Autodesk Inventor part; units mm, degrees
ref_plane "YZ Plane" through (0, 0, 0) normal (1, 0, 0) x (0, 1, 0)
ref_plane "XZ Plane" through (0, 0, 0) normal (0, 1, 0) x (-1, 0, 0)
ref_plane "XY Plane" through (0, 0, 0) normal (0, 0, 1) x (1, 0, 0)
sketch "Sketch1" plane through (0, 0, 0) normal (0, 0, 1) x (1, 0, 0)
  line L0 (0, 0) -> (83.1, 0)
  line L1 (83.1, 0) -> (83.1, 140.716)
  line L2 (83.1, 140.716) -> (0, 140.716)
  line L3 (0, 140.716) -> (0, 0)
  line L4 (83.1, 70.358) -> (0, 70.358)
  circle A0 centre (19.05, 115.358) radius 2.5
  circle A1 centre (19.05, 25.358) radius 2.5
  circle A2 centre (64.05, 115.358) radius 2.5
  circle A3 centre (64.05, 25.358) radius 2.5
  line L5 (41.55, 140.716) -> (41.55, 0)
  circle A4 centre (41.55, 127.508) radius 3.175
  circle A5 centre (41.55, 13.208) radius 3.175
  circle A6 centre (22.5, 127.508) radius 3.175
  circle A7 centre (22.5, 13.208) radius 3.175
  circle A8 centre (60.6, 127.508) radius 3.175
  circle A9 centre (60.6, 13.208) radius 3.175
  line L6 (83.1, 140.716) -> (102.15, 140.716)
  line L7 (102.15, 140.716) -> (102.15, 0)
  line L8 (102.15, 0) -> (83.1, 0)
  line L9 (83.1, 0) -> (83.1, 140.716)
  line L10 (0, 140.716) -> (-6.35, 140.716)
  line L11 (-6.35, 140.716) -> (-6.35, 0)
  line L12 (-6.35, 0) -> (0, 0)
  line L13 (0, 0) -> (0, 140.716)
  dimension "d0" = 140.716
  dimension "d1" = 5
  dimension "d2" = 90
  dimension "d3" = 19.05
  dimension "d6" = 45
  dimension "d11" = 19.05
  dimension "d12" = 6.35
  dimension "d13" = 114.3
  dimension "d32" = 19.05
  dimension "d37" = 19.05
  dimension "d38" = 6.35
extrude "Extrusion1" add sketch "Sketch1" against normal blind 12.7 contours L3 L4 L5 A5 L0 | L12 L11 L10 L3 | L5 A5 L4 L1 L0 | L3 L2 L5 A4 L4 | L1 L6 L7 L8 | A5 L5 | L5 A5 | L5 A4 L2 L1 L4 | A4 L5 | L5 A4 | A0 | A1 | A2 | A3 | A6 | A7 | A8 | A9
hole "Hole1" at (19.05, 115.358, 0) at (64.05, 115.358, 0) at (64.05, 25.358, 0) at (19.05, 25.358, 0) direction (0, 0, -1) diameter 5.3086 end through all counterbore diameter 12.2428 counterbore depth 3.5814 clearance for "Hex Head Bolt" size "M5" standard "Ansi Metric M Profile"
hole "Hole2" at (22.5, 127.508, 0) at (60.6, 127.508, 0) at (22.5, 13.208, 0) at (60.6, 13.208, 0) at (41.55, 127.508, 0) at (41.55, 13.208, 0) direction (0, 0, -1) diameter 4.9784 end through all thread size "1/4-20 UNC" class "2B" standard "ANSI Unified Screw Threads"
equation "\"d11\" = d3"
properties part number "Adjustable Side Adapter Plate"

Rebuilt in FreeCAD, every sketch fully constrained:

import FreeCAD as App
import Part
import Sketcher

V = App.Vector
Q = App.Units.Quantity

doc = App.newDocument("Part")
body = doc.addObject("PartDesign::Body", "Body")

# Sketch on XY plane
sketch1 = body.newObject("Sketcher::SketchObject", "Sketch")
sketch1.AttachmentSupport = (doc.getObject("XY_Plane"), [""])
sketch1.MapMode = "FlatFace"
sketch1.addGeometry([
    Part.LineSegment(V(102, 0, 0), V(102, 141, 0)),
    Part.LineSegment(V(102, 141, 0), V(-6, 141, 0)),
    Part.LineSegment(V(-6, 141, 0), V(-6, 0, 0)),
    Part.LineSegment(V(-6, 0, 0), V(102, 0, 0)),
], False)
sketch1.addConstraint([
    Sketcher.Constraint("Coincident", 0, 2, 1, 1),
    Sketcher.Constraint("Coincident", 1, 2, 2, 1),
    Sketcher.Constraint("Coincident", 2, 2, 3, 1),
    Sketcher.Constraint("Coincident", 3, 2, 0, 1),
    Sketcher.Constraint("Vertical", 0),
    Sketcher.Constraint("Horizontal", 1),
    Sketcher.Constraint("Vertical", 2),
    Sketcher.Constraint("Horizontal", 3),
    Sketcher.Constraint("PointOnObject", 2, 2, -1),
    Sketcher.Constraint("DistanceY", 0, 1, 0, 2, Q("5.54 in")),
    Sketcher.Constraint("DistanceX", 1, 2, -1, 1, Q("0.25 in")),
    Sketcher.Constraint("DistanceX", 1, 2, 1, 1, Q("108.5 mm")),
])
pad1 = body.newObject("PartDesign::Pad", "Pad")
pad1.Profile = sketch1
pad1.Length = Q("0.5 in")
pad1.Reversed = True

# Sketch on XY plane
sketch2 = body.newObject("Sketcher::SketchObject", "Sketch001")
sketch2.AttachmentSupport = (doc.getObject("XY_Plane"), [""])
sketch2.MapMode = "FlatFace"
sketch2.addGeometry([
    Part.Circle(V(19.1, 115.4, 0), V(0, 0, 1), 2.7),
    Part.Circle(V(64, 115.4, 0), V(0, 0, 1), 2.7),
    Part.Circle(V(64, 25.4, 0), V(0, 0, 1), 2.7),
    Part.Circle(V(19.1, 25.4, 0), V(0, 0, 1), 2.7),
], False)
sketch2.addConstraint([
    Sketcher.Constraint("Equal", 0, 1),
    Sketcher.Constraint("Equal", 1, 2),
    Sketcher.Constraint("Equal", 2, 3),
    Sketcher.Constraint("Horizontal", 0, 3, 1, 3),
    Sketcher.Constraint("Horizontal", 2, 3, 3, 3),
    Sketcher.Constraint("Vertical", 1, 3, 2, 3),
    Sketcher.Constraint("Vertical", 0, 3, 3, 3),
    Sketcher.Constraint("Diameter", 0, Q("0.209 in")),
    Sketcher.Constraint("DistanceX", -1, 1, 0, 3, Q("0.75 in")),
    Sketcher.Constraint("DistanceY", 2, 3, 1, 3, Q("3.5433 in")),
    Sketcher.Constraint("DistanceY", -1, 1, 0, 3, Q("115.358 mm")),
    Sketcher.Constraint("DistanceX", -1, 1, 1, 3, Q("64.05 mm")),
])
doc.recompute()
hole = body.newObject("PartDesign::Hole", "Hole")
hole.Profile = sketch2
hole.ThreadType = "None"
hole.Diameter = Q("0.209 in")
hole.DepthType = "ThroughAll"
hole.HoleCutType = "Counterbore"
hole.HoleCutDiameter = Q("0.482 in")
hole.HoleCutDepth = Q("0.141 in")

# Sketch on XY plane
sketch3 = body.newObject("Sketcher::SketchObject", "Sketch002")
sketch3.AttachmentSupport = (doc.getObject("XY_Plane"), [""])
sketch3.MapMode = "FlatFace"
sketch3.addGeometry([
    Part.Circle(V(22.5, 127.5, 0), V(0, 0, 1), 2.5),  # 0
    Part.Circle(V(60.6, 127.5, 0), V(0, 0, 1), 2.5),  # 1
    Part.Circle(V(22.5, 13.2, 0), V(0, 0, 1), 2.5),  # 2
    Part.Circle(V(60.6, 13.2, 0), V(0, 0, 1), 2.5),  # 3
    Part.Circle(V(41.5, 127.5, 0), V(0, 0, 1), 2.5),  # 4
    Part.Circle(V(41.5, 13.2, 0), V(0, 0, 1), 2.5),  # 5
], False)
sketch3.addConstraint([
    Sketcher.Constraint("Equal", 0, 1),
    Sketcher.Constraint("Equal", 1, 2),
    Sketcher.Constraint("Equal", 2, 3),
    Sketcher.Constraint("Equal", 3, 4),
    Sketcher.Constraint("Equal", 4, 5),
    Sketcher.Constraint("Horizontal", 0, 3, 1, 3),
    Sketcher.Constraint("Horizontal", 2, 3, 3, 3),
    Sketcher.Constraint("Horizontal", 1, 3, 4, 3),
    Sketcher.Constraint("Horizontal", 3, 3, 5, 3),
    Sketcher.Constraint("Vertical", 0, 3, 2, 3),
    Sketcher.Constraint("Vertical", 1, 3, 3, 3),
    Sketcher.Constraint("Vertical", 4, 3, 5, 3),
    Sketcher.Constraint("Diameter", 0, Q("0.196 in")),
    Sketcher.Constraint("DistanceX", 0, 3, 1, 3, Q("1.5 in")),
    Sketcher.Constraint("DistanceY", 2, 3, 0, 3, Q("4.5 in")),
    Sketcher.Constraint("DistanceY", -1, 1, 0, 3, Q("5.02 in")),
    Sketcher.Constraint("DistanceX", 0, 3, 4, 3, Q("0.75 in")),
    Sketcher.Constraint("DistanceX", -1, 1, 0, 3, Q("22.5 mm")),
])
doc.recompute()
hole2 = body.newObject("PartDesign::Hole", "Hole001")
hole2.Profile = sketch3
hole2.ThreadType = "None"
hole2.Diameter = Q("0.196 in")
hole2.DepthType = "ThroughAll"

doc.recompute()
